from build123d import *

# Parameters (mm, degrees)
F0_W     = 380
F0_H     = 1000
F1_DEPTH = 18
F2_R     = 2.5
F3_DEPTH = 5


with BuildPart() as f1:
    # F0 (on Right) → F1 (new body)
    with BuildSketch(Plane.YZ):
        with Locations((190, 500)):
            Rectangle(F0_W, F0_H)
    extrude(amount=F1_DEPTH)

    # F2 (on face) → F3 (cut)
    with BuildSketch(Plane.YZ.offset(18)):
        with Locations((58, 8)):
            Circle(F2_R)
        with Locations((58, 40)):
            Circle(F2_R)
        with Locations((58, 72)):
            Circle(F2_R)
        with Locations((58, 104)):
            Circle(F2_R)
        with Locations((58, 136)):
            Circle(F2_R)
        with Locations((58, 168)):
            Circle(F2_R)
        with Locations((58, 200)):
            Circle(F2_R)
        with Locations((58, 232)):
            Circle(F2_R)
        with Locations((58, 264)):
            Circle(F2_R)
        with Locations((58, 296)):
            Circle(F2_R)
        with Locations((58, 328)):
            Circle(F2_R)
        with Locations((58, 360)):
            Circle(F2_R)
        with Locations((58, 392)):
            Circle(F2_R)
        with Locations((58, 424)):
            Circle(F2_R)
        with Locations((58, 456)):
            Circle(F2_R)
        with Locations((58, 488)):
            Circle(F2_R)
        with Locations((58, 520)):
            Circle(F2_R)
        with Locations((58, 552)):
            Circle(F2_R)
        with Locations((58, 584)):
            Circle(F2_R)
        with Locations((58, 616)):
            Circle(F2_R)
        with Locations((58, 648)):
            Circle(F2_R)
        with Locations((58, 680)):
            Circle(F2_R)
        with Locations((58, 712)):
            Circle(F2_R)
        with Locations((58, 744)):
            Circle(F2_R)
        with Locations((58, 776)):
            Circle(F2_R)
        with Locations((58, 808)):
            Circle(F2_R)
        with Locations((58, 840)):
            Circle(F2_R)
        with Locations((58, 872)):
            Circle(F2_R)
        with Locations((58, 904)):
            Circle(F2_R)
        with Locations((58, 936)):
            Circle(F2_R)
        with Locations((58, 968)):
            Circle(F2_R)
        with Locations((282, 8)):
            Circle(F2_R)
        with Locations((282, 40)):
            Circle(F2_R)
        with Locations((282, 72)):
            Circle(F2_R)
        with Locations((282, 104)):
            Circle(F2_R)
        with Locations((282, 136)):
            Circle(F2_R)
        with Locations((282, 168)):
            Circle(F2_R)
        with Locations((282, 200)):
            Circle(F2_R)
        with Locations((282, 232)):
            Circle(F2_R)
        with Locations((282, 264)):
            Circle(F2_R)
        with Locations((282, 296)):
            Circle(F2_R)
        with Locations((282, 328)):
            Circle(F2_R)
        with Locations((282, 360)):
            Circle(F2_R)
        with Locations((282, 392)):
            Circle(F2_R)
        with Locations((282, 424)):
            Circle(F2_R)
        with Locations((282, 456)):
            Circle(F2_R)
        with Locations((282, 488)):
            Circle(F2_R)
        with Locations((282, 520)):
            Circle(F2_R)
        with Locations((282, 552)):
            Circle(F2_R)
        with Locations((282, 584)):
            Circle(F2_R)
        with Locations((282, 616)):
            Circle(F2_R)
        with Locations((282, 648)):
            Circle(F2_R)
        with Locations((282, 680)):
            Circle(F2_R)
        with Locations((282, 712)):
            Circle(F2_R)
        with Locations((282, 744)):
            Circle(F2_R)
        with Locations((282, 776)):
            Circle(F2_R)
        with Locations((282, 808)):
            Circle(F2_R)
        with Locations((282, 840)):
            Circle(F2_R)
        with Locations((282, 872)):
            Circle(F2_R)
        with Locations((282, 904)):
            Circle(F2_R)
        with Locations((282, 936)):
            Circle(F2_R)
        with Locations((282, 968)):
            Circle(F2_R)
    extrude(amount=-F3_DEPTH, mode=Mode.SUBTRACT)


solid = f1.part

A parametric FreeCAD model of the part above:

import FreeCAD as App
import Part
import Sketcher

V = App.Vector
Q = App.Units.Quantity


def add_polygon(sketch, points):
    """Adds a closed chain of lines whose ends are joined by coincident constraints."""
    first, n = sketch.GeometryCount, len(points)
    for a, b in zip(points, points[1:] + points[:1]):
        sketch.addGeometry(Part.LineSegment(App.Vector(*a, 0), App.Vector(*b, 0)), False)
    for i in range(n):
        sketch.addConstraint(Sketcher.Constraint("Coincident", first + i, 2, first + (i + 1) % n, 1))

doc = App.newDocument("Part")
body = doc.addObject("PartDesign::Body", "Body")

sketch1 = body.newObject("Sketcher::SketchObject", "Sketch")
sketch1.AttachmentSupport = (doc.getObject("YZ_Plane"), [""])
sketch1.MapMode = "FlatFace"
add_polygon(sketch1, [(0, 1000), (0, 0), (380, 0), (380, 1000)])
sketch1.addConstraint([
    Sketcher.Constraint("Vertical", 0),
    Sketcher.Constraint("Horizontal", 1),
    Sketcher.Constraint("Vertical", 2),
    Sketcher.Constraint("Horizontal", 3),
    Sketcher.Constraint("Coincident", 0, 2, -1, 1),
    Sketcher.Constraint("DistanceX", 1, 1, 1, 2, Q("380 mm")),
    Sketcher.Constraint("DistanceY", 0, 2, 0, 1, Q("1000 mm")),
])
pad1 = body.newObject("PartDesign::Pad", "Pad")
pad1.Profile = sketch1
pad1.Length = 18

sketch2 = body.newObject("Sketcher::SketchObject", "Sketch001")
sketch2.AttachmentSupport = (doc.getObject("YZ_Plane"), [""])
sketch2.MapMode = "FlatFace"
sketch2.AttachmentOffset = App.Placement(V(0, 0, 18), App.Rotation())
sketch2.addGeometry([
    Part.Circle(V(58, 8, 0), V(0, 0, 1), 2.5),
    Part.Circle(V(58, 40, 0), V(0, 0, 1), 2.5),
    Part.Circle(V(58, 72, 0), V(0, 0, 1), 2.5),
    Part.Circle(V(58, 104, 0), V(0, 0, 1), 2.5),
    Part.Circle(V(58, 136, 0), V(0, 0, 1), 2.5),
    Part.Circle(V(58, 168, 0), V(0, 0, 1), 2.5),
    Part.Circle(V(58, 200, 0), V(0, 0, 1), 2.5),
    Part.Circle(V(58, 232, 0), V(0, 0, 1), 2.5),
    Part.Circle(V(58, 264, 0), V(0, 0, 1), 2.5),
    Part.Circle(V(58, 296, 0), V(0, 0, 1), 2.5),
    Part.Circle(V(58, 328, 0), V(0, 0, 1), 2.5),
    Part.Circle(V(58, 360, 0), V(0, 0, 1), 2.5),
    Part.Circle(V(58, 392, 0), V(0, 0, 1), 2.5),
    Part.Circle(V(58, 424, 0), V(0, 0, 1), 2.5),
    Part.Circle(V(58, 456, 0), V(0, 0, 1), 2.5),
    Part.Circle(V(58, 488, 0), V(0, 0, 1), 2.5),
    Part.Circle(V(58, 520, 0), V(0, 0, 1), 2.5),
    Part.Circle(V(58, 552, 0), V(0, 0, 1), 2.5),
    Part.Circle(V(58, 584, 0), V(0, 0, 1), 2.5),
    Part.Circle(V(58, 616, 0), V(0, 0, 1), 2.5),
    Part.Circle(V(58, 648, 0), V(0, 0, 1), 2.5),
    Part.Circle(V(58, 680, 0), V(0, 0, 1), 2.5),
    Part.Circle(V(58, 712, 0), V(0, 0, 1), 2.5),
    Part.Circle(V(58, 744, 0), V(0, 0, 1), 2.5),
    Part.Circle(V(58, 776, 0), V(0, 0, 1), 2.5),
    Part.Circle(V(58, 808, 0), V(0, 0, 1), 2.5),
    Part.Circle(V(58, 840, 0), V(0, 0, 1), 2.5),
    Part.Circle(V(58, 872, 0), V(0, 0, 1), 2.5),
    Part.Circle(V(58, 904, 0), V(0, 0, 1), 2.5),
    Part.Circle(V(58, 936, 0), V(0, 0, 1), 2.5),
    Part.Circle(V(58, 968, 0), V(0, 0, 1), 2.5),
    Part.Circle(V(282, 8, 0), V(0, 0, 1), 2.5),
    Part.Circle(V(282, 40, 0), V(0, 0, 1), 2.5),
    Part.Circle(V(282, 72, 0), V(0, 0, 1), 2.5),
    Part.Circle(V(282, 104, 0), V(0, 0, 1), 2.5),
    Part.Circle(V(282, 136, 0), V(0, 0, 1), 2.5),
    Part.Circle(V(282, 168, 0), V(0, 0, 1), 2.5),
    Part.Circle(V(282, 200, 0), V(0, 0, 1), 2.5),
    Part.Circle(V(282, 232, 0), V(0, 0, 1), 2.5),
    Part.Circle(V(282, 264, 0), V(0, 0, 1), 2.5),
    Part.Circle(V(282, 296, 0), V(0, 0, 1), 2.5),
    Part.Circle(V(282, 328, 0), V(0, 0, 1), 2.5),
    Part.Circle(V(282, 360, 0), V(0, 0, 1), 2.5),
    Part.Circle(V(282, 392, 0), V(0, 0, 1), 2.5),
    Part.Circle(V(282, 424, 0), V(0, 0, 1), 2.5),
    Part.Circle(V(282, 456, 0), V(0, 0, 1), 2.5),
    Part.Circle(V(282, 488, 0), V(0, 0, 1), 2.5),
    Part.Circle(V(282, 520, 0), V(0, 0, 1), 2.5),
    Part.Circle(V(282, 552, 0), V(0, 0, 1), 2.5),
    Part.Circle(V(282, 584, 0), V(0, 0, 1), 2.5),
    Part.Circle(V(282, 616, 0), V(0, 0, 1), 2.5),
    Part.Circle(V(282, 648, 0), V(0, 0, 1), 2.5),
    Part.Circle(V(282, 680, 0), V(0, 0, 1), 2.5),
    Part.Circle(V(282, 712, 0), V(0, 0, 1), 2.5),
    Part.Circle(V(282, 744, 0), V(0, 0, 1), 2.5),
    Part.Circle(V(282, 776, 0), V(0, 0, 1), 2.5),
    Part.Circle(V(282, 808, 0), V(0, 0, 1), 2.5),
    Part.Circle(V(282, 840, 0), V(0, 0, 1), 2.5),
    Part.Circle(V(282, 872, 0), V(0, 0, 1), 2.5),
    Part.Circle(V(282, 904, 0), V(0, 0, 1), 2.5),
    Part.Circle(V(282, 936, 0), V(0, 0, 1), 2.5),
    Part.Circle(V(282, 968, 0), V(0, 0, 1), 2.5),
], False)
sketch2.addConstraint([
    Sketcher.Constraint("Equal", 0, 1),
    Sketcher.Constraint("Equal", 1, 2),
    Sketcher.Constraint("Equal", 2, 3),
    Sketcher.Constraint("Equal", 3, 4),
    Sketcher.Constraint("Equal", 4, 5),
    Sketcher.Constraint("Equal", 5, 6),
    Sketcher.Constraint("Equal", 6, 7),
    Sketcher.Constraint("Equal", 7, 8),
    Sketcher.Constraint("Equal", 8, 9),
    Sketcher.Constraint("Equal", 9, 10),
    Sketcher.Constraint("Equal", 10, 11),
    Sketcher.Constraint("Equal", 11, 12),
    Sketcher.Constraint("Equal", 12, 13),
    Sketcher.Constraint("Equal", 13, 14),
    Sketcher.Constraint("Equal", 14, 15),
    Sketcher.Constraint("Equal", 15, 16),
    Sketcher.Constraint("Equal", 16, 17),
    Sketcher.Constraint("Equal", 17, 18),
    Sketcher.Constraint("Equal", 18, 19),
    Sketcher.Constraint("Equal", 19, 20),
    Sketcher.Constraint("Equal", 20, 21),
    Sketcher.Constraint("Equal", 21, 22),
    Sketcher.Constraint("Equal", 22, 23),
    Sketcher.Constraint("Equal", 23, 24),
    Sketcher.Constraint("Equal", 24, 25),
    Sketcher.Constraint("Equal", 25, 26),
    Sketcher.Constraint("Equal", 26, 27),
    Sketcher.Constraint("Equal", 27, 28),
    Sketcher.Constraint("Equal", 28, 29),
    Sketcher.Constraint("Equal", 29, 30),
    Sketcher.Constraint("Equal", 30, 31),
    Sketcher.Constraint("Equal", 31, 32),
    Sketcher.Constraint("Equal", 32, 33),
    Sketcher.Constraint("Equal", 33, 34),
    Sketcher.Constraint("Equal", 34, 35),
    Sketcher.Constraint("Equal", 35, 36),
    Sketcher.Constraint("Equal", 36, 37),
    Sketcher.Constraint("Equal", 37, 38),
    Sketcher.Constraint("Equal", 38, 39),
    Sketcher.Constraint("Equal", 39, 40),
    Sketcher.Constraint("Equal", 40, 41),
    Sketcher.Constraint("Equal", 41, 42),
    Sketcher.Constraint("Equal", 42, 43),
    Sketcher.Constraint("Equal", 43, 44),
    Sketcher.Constraint("Equal", 44, 45),
    Sketcher.Constraint("Equal", 45, 46),
    Sketcher.Constraint("Equal", 46, 47),
    Sketcher.Constraint("Equal", 47, 48),
    Sketcher.Constraint("Equal", 48, 49),
    Sketcher.Constraint("Equal", 49, 50),
    Sketcher.Constraint("Equal", 50, 51),
    Sketcher.Constraint("Equal", 51, 52),
    Sketcher.Constraint("Equal", 52, 53),
    Sketcher.Constraint("Equal", 53, 54),
    Sketcher.Constraint("Equal", 54, 55),
    Sketcher.Constraint("Equal", 55, 56),
    Sketcher.Constraint("Equal", 56, 57),
    Sketcher.Constraint("Equal", 57, 58),
    Sketcher.Constraint("Equal", 58, 59),
    Sketcher.Constraint("Equal", 59, 60),
    Sketcher.Constraint("Equal", 60, 61),
    Sketcher.Constraint("Horizontal", 0, 3, 31, 3),
    Sketcher.Constraint("Horizontal", 1, 3, 32, 3),
    Sketcher.Constraint("Horizontal", 2, 3, 33, 3),
    Sketcher.Constraint("Horizontal", 3, 3, 34, 3),
    Sketcher.Constraint("Horizontal", 4, 3, 35, 3),
    Sketcher.Constraint("Horizontal", 5, 3, 36, 3),
    Sketcher.Constraint("Horizontal", 6, 3, 37, 3),
    Sketcher.Constraint("Horizontal", 7, 3, 38, 3),
    Sketcher.Constraint("Horizontal", 8, 3, 39, 3),
    Sketcher.Constraint("Horizontal", 9, 3, 40, 3),
    Sketcher.Constraint("Horizontal", 10, 3, 41, 3),
    Sketcher.Constraint("Horizontal", 11, 3, 42, 3),
    Sketcher.Constraint("Horizontal", 12, 3, 43, 3),
    Sketcher.Constraint("Horizontal", 13, 3, 44, 3),
    Sketcher.Constraint("Horizontal", 14, 3, 45, 3),
    Sketcher.Constraint("Horizontal", 15, 3, 46, 3),
    Sketcher.Constraint("Horizontal", 16, 3, 47, 3),
    Sketcher.Constraint("Horizontal", 17, 3, 48, 3),
    Sketcher.Constraint("Horizontal", 18, 3, 49, 3),
    Sketcher.Constraint("Horizontal", 19, 3, 50, 3),
    Sketcher.Constraint("Horizontal", 20, 3, 51, 3),
    Sketcher.Constraint("Horizontal", 21, 3, 52, 3),
    Sketcher.Constraint("Horizontal", 22, 3, 53, 3),
    Sketcher.Constraint("Horizontal", 23, 3, 54, 3),
    Sketcher.Constraint("Horizontal", 24, 3, 55, 3),
    Sketcher.Constraint("Horizontal", 25, 3, 56, 3),
    Sketcher.Constraint("Horizontal", 26, 3, 57, 3),
    Sketcher.Constraint("Horizontal", 27, 3, 58, 3),
    Sketcher.Constraint("Horizontal", 28, 3, 59, 3),
    Sketcher.Constraint("Horizontal", 29, 3, 60, 3),
    Sketcher.Constraint("Horizontal", 30, 3, 61, 3),
    Sketcher.Constraint("Vertical", 0, 3, 1, 3),
    Sketcher.Constraint("Vertical", 1, 3, 2, 3),
    Sketcher.Constraint("Vertical", 2, 3, 3, 3),
    Sketcher.Constraint("Vertical", 3, 3, 4, 3),
    Sketcher.Constraint("Vertical", 4, 3, 5, 3),
    Sketcher.Constraint("Vertical", 5, 3, 6, 3),
    Sketcher.Constraint("Vertical", 6, 3, 7, 3),
    Sketcher.Constraint("Vertical", 7, 3, 8, 3),
    Sketcher.Constraint("Vertical", 8, 3, 9, 3),
    Sketcher.Constraint("Vertical", 9, 3, 10, 3),
    Sketcher.Constraint("Vertical", 10, 3, 11, 3),
    Sketcher.Constraint("Vertical", 11, 3, 12, 3),
    Sketcher.Constraint("Vertical", 12, 3, 13, 3),
    Sketcher.Constraint("Vertical", 13, 3, 14, 3),
    Sketcher.Constraint("Vertical", 14, 3, 15, 3),
    Sketcher.Constraint("Vertical", 15, 3, 16, 3),
    Sketcher.Constraint("Vertical", 16, 3, 17, 3),
    Sketcher.Constraint("Vertical", 17, 3, 18, 3),
    Sketcher.Constraint("Vertical", 18, 3, 19, 3),
    Sketcher.Constraint("Vertical", 19, 3, 20, 3),
    Sketcher.Constraint("Vertical", 20, 3, 21, 3),
    Sketcher.Constraint("Vertical", 21, 3, 22, 3),
    Sketcher.Constraint("Vertical", 22, 3, 23, 3),
    Sketcher.Constraint("Vertical", 23, 3, 24, 3),
    Sketcher.Constraint("Vertical", 24, 3, 25, 3),
    Sketcher.Constraint("Vertical", 25, 3, 26, 3),
    Sketcher.Constraint("Vertical", 26, 3, 27, 3),
    Sketcher.Constraint("Vertical", 27, 3, 28, 3),
    Sketcher.Constraint("Vertical", 28, 3, 29, 3),
    Sketcher.Constraint("Vertical", 29, 3, 30, 3),
    Sketcher.Constraint("Vertical", 31, 3, 32, 3),
    Sketcher.Constraint("Vertical", 32, 3, 33, 3),
    Sketcher.Constraint("Vertical", 33, 3, 34, 3),
    Sketcher.Constraint("Vertical", 34, 3, 35, 3),
    Sketcher.Constraint("Vertical", 35, 3, 36, 3),
    Sketcher.Constraint("Vertical", 36, 3, 37, 3),
    Sketcher.Constraint("Vertical", 37, 3, 38, 3),
    Sketcher.Constraint("Vertical", 38, 3, 39, 3),
    Sketcher.Constraint("Vertical", 39, 3, 40, 3),
    Sketcher.Constraint("Vertical", 40, 3, 41, 3),
    Sketcher.Constraint("Vertical", 41, 3, 42, 3),
    Sketcher.Constraint("Vertical", 42, 3, 43, 3),
    Sketcher.Constraint("Vertical", 43, 3, 44, 3),
    Sketcher.Constraint("Vertical", 44, 3, 45, 3),
    Sketcher.Constraint("Vertical", 45, 3, 46, 3),
    Sketcher.Constraint("Vertical", 46, 3, 47, 3),
    Sketcher.Constraint("Vertical", 47, 3, 48, 3),
    Sketcher.Constraint("Vertical", 48, 3, 49, 3),
    Sketcher.Constraint("Vertical", 49, 3, 50, 3),
    Sketcher.Constraint("Vertical", 50, 3, 51, 3),
    Sketcher.Constraint("Vertical", 51, 3, 52, 3),
    Sketcher.Constraint("Vertical", 52, 3, 53, 3),
    Sketcher.Constraint("Vertical", 53, 3, 54, 3),
    Sketcher.Constraint("Vertical", 54, 3, 55, 3),
    Sketcher.Constraint("Vertical", 55, 3, 56, 3),
    Sketcher.Constraint("Vertical", 56, 3, 57, 3),
    Sketcher.Constraint("Vertical", 57, 3, 58, 3),
    Sketcher.Constraint("Vertical", 58, 3, 59, 3),
    Sketcher.Constraint("Vertical", 59, 3, 60, 3),
    Sketcher.Constraint("Vertical", 60, 3, 61, 3),
    Sketcher.Constraint("Diameter", 0, Q("5 mm")),
    Sketcher.Constraint("DistanceX", -1, 1, 0, 3, Q("58 mm")),
    Sketcher.Constraint("DistanceY", -1, 1, 0, 3, Q("8 mm")),
    Sketcher.Constraint("DistanceY", -1, 1, 1, 3, Q("40 mm")),
    Sketcher.Constraint("DistanceY", -1, 1, 2, 3, Q("72 mm")),
    Sketcher.Constraint("DistanceY", -1, 1, 3, 3, Q("104 mm")),
    Sketcher.Constraint("DistanceY", -1, 1, 4, 3, Q("136 mm")),
    Sketcher.Constraint("DistanceY", -1, 1, 5, 3, Q("168 mm")),
    Sketcher.Constraint("DistanceY", -1, 1, 6, 3, Q("200 mm")),
    Sketcher.Constraint("DistanceY", -1, 1, 7, 3, Q("232 mm")),
    Sketcher.Constraint("DistanceY", -1, 1, 8, 3, Q("264 mm")),
    Sketcher.Constraint("DistanceY", -1, 1, 9, 3, Q("296 mm")),
    Sketcher.Constraint("DistanceY", -1, 1, 10, 3, Q("328 mm")),
    Sketcher.Constraint("DistanceY", -1, 1, 11, 3, Q("360 mm")),
    Sketcher.Constraint("DistanceY", -1, 1, 12, 3, Q("392 mm")),
    Sketcher.Constraint("DistanceY", -1, 1, 13, 3, Q("424 mm")),
    Sketcher.Constraint("DistanceY", -1, 1, 14, 3, Q("456 mm")),
    Sketcher.Constraint("DistanceY", -1, 1, 15, 3, Q("488 mm")),
    Sketcher.Constraint("DistanceY", -1, 1, 16, 3, Q("520 mm")),
    Sketcher.Constraint("DistanceY", -1, 1, 17, 3, Q("552 mm")),
    Sketcher.Constraint("DistanceY", -1, 1, 18, 3, Q("584 mm")),
    Sketcher.Constraint("DistanceY", -1, 1, 19, 3, Q("616 mm")),
    Sketcher.Constraint("DistanceY", -1, 1, 20, 3, Q("648 mm")),
    Sketcher.Constraint("DistanceY", -1, 1, 21, 3, Q("680 mm")),
    Sketcher.Constraint("DistanceY", -1, 1, 22, 3, Q("712 mm")),
    Sketcher.Constraint("DistanceY", -1, 1, 23, 3, Q("744 mm")),
    Sketcher.Constraint("DistanceY", -1, 1, 24, 3, Q("776 mm")),
    Sketcher.Constraint("DistanceY", -1, 1, 25, 3, Q("808 mm")),
    Sketcher.Constraint("DistanceY", -1, 1, 26, 3, Q("840 mm")),
    Sketcher.Constraint("DistanceY", -1, 1, 27, 3, Q("872 mm")),
    Sketcher.Constraint("DistanceY", -1, 1, 28, 3, Q("904 mm")),
    Sketcher.Constraint("DistanceY", -1, 1, 29, 3, Q("936 mm")),
    Sketcher.Constraint("DistanceY", -1, 1, 30, 3, Q("968 mm")),
    Sketcher.Constraint("DistanceX", -1, 1, 31, 3, Q("282 mm")),
])
pocket1 = body.newObject("PartDesign::Pocket", "Pocket")
pocket1.Profile = sketch2
pocket1.Length = 5

doc.recompute()
